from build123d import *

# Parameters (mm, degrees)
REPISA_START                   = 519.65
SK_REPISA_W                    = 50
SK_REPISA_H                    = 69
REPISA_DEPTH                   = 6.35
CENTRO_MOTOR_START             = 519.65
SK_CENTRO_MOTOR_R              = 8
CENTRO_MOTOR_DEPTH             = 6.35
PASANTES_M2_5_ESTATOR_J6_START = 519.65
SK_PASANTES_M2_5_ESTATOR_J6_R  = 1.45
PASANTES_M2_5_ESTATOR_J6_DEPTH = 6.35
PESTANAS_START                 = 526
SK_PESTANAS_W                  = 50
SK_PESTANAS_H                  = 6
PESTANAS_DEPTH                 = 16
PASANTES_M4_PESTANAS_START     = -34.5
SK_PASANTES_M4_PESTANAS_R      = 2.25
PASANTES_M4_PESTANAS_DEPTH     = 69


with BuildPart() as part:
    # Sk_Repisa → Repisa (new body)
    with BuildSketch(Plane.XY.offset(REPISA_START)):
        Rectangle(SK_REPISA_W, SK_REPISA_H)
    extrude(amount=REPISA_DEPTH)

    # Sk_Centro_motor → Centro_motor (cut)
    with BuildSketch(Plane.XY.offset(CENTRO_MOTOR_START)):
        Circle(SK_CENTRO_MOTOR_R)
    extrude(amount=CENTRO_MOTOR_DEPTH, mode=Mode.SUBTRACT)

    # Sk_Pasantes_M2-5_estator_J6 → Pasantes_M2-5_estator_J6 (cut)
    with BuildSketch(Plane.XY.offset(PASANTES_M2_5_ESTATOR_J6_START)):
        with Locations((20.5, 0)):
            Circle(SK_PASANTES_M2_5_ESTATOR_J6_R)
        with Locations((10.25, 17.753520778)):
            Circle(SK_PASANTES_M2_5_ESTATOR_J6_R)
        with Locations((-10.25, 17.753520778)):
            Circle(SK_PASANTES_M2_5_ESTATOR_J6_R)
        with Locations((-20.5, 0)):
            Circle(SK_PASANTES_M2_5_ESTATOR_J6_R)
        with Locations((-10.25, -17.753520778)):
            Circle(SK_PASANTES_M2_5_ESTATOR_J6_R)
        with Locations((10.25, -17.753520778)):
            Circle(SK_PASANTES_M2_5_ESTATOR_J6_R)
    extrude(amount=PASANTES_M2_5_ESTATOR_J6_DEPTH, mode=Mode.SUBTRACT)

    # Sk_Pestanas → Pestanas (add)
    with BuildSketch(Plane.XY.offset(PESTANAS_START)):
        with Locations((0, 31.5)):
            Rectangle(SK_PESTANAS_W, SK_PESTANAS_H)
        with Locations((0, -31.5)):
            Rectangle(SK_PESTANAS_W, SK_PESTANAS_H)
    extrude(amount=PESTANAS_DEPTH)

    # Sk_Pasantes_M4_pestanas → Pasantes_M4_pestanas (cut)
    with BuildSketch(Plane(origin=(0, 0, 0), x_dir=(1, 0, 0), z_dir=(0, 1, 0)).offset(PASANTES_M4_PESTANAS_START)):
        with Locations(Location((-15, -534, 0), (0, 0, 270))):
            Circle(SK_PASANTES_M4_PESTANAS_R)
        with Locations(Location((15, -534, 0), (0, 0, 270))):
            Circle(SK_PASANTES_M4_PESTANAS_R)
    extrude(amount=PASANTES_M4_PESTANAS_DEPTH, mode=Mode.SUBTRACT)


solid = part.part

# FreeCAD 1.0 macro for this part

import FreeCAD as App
import Part
import Sketcher
from FreeCAD import Vector
Q = App.Units.Quantity

doc = App.newDocument("Part")
params = doc.addObject("Spreadsheet::Sheet", "Params")
for row, (alias, value) in enumerate([
    ("sketch1_width", "50 mm"),
    ("sketch1_height", "69 mm"),
    ("pad1_length", "6.35 mm"),
    ("sketch2_diameter", "16 mm"),
    ("pocket1_length", "6.35 mm"),
    ("sketch3_diameter", "2.9 mm"),
    ("pocket2_length", "6.35 mm"),
    ("sketch4_width", "50 mm"),
    ("sketch4_height", "6 mm"),
    ("pad2_length", "16 mm"),
    ("sketch5_diameter", "4.5 mm"),
    ("pocket3_length", "69 mm"),
], start=1):
    params.set(f"A{row}", alias)
    params.set(f"B{row}", "=" + value)
    params.setAlias(f"B{row}", alias)

body = doc.addObject("PartDesign::Body", "Body")

sketch1 = doc.addObject("Sketcher::SketchObject", "Sketch")
body.addObject(sketch1)
sketch1.AttachmentSupport = (doc.XY_Plane, [""])
sketch1.MapMode = "FlatFace"
sketch1.AttachmentOffset = App.Placement(Vector(0, 0, 519.65), App.Rotation())
sketch1.addGeometry([
    Part.LineSegment(Vector(-25, 34, 0), Vector(-25, -34, 0)),
    Part.LineSegment(Vector(-25, -34, 0), Vector(25, -34, 0)),
    Part.LineSegment(Vector(25, -34, 0), Vector(25, 34, 0)),
    Part.LineSegment(Vector(25, 34, 0), Vector(-25, 34, 0)),
], False)
sketch1.addConstraint([
    Sketcher.Constraint("Coincident", 0, 2, 1, 1),
    Sketcher.Constraint("Coincident", 1, 2, 2, 1),
    Sketcher.Constraint("Coincident", 2, 2, 3, 1),
    Sketcher.Constraint("Coincident", 3, 2, 0, 1),
    Sketcher.Constraint("Vertical", 0),
    Sketcher.Constraint("Horizontal", 1),
    Sketcher.Constraint("Vertical", 2),
    Sketcher.Constraint("Horizontal", 3),
    Sketcher.Constraint("Symmetric", 0, 2, 2, 2, -1, 1),
    Sketcher.Constraint("DistanceX", 1, 1, 1, 2, Q("50 mm")),
    Sketcher.Constraint("DistanceY", 0, 2, 0, 1, Q("69 mm")),
])
sketch1.setExpression("Constraints[9]", "Params.sketch1_width")
sketch1.setExpression("Constraints[10]", "Params.sketch1_height")
pad1 = doc.addObject("PartDesign::Pad", "Pad")
body.addObject(pad1)
pad1.Profile = sketch1
pad1.setExpression("Length", "Params.pad1_length")

sketch2 = doc.addObject("Sketcher::SketchObject", "Sketch001")
body.addObject(sketch2)
sketch2.AttachmentSupport = (doc.XY_Plane, [""])
sketch2.MapMode = "FlatFace"
sketch2.AttachmentOffset = App.Placement(Vector(0, 0, 519.65), App.Rotation())
sketch2.addGeometry(Part.Circle(Vector(0, 0, 0), Vector(0, 0, 1), 8), False)
sketch2.addConstraint([
    Sketcher.Constraint("Coincident", 0, 3, -1, 1),
    Sketcher.Constraint("Diameter", 0, Q("16 mm")),
])
sketch2.setExpression("Constraints[1]", "Params.sketch2_diameter")
pocket1 = doc.addObject("PartDesign::Pocket", "Pocket")
body.addObject(pocket1)
pocket1.Profile = sketch2
pocket1.setExpression("Length", "Params.pocket1_length")
pocket1.Reversed = True

sketch3 = doc.addObject("Sketcher::SketchObject", "Sketch002")
body.addObject(sketch3)
sketch3.AttachmentSupport = (doc.XY_Plane, [""])
sketch3.MapMode = "FlatFace"
sketch3.AttachmentOffset = App.Placement(Vector(0, 0, 519.65), App.Rotation())
sketch3.addGeometry([
    Part.Circle(Vector(20.5, 0, 0), Vector(0, 0, 1), 1.4),
    Part.Circle(Vector(10.2, 17.8, 0), Vector(0, 0, 1), 1.4),
    Part.Circle(Vector(-10.2, 17.8, 0), Vector(0, 0, 1), 1.4),
    Part.Circle(Vector(-20.5, 0, 0), Vector(0, 0, 1), 1.4),
    Part.Circle(Vector(-10.2, -17.8, 0), Vector(0, 0, 1), 1.4),
    Part.Circle(Vector(10.2, -17.8, 0), Vector(0, 0, 1), 1.4),
], False)
sketch3.addConstraint([
    Sketcher.Constraint("Equal", 0, 1),
    Sketcher.Constraint("Equal", 1, 2),
    Sketcher.Constraint("Equal", 2, 3),
    Sketcher.Constraint("Equal", 3, 4),
    Sketcher.Constraint("Equal", 4, 5),
    Sketcher.Constraint("Symmetric", 0, 3, 3, 3, -1, 1),
    Sketcher.Constraint("Symmetric", 1, 3, 4, 3, -1, 1),
    Sketcher.Constraint("Symmetric", 2, 3, 5, 3, -1, 1),
    Sketcher.Constraint("Symmetric", 1, 3, 2, 3, -2),
    Sketcher.Constraint("PointOnObject", 0, 3, -1),
    Sketcher.Constraint("Diameter", 0, Q("2.9 mm")),
    Sketcher.Constraint("DistanceX", 3, 3, 0, 3, Q("41 mm")),
    Sketcher.Constraint("DistanceX", 2, 3, 1, 3, Q("20.5 mm")),
    Sketcher.Constraint("DistanceY", -1, 1, 1, 3, Q("17.753521 mm")),
])
sketch3.setExpression("Constraints[10]", "Params.sketch3_diameter")
pocket2 = doc.addObject("PartDesign::Pocket", "Pocket001")
body.addObject(pocket2)
pocket2.Profile = sketch3
pocket2.setExpression("Length", "Params.pocket2_length")
pocket2.Reversed = True

sketch4 = doc.addObject("Sketcher::SketchObject", "Sketch003")
body.addObject(sketch4)
sketch4.AttachmentSupport = (doc.XY_Plane, [""])
sketch4.MapMode = "FlatFace"
sketch4.AttachmentOffset = App.Placement(Vector(0, 0, 526), App.Rotation())
sketch4.addGeometry([
    Part.LineSegment(Vector(-25, 34, 0), Vector(-25, 28, 0)),
    Part.LineSegment(Vector(-25, 28, 0), Vector(25, 28, 0)),
    Part.LineSegment(Vector(25, 28, 0), Vector(25, 34, 0)),
    Part.LineSegment(Vector(25, 34, 0), Vector(-25, 34, 0)),
    Part.LineSegment(Vector(-25, -28, 0), Vector(-25, -34, 0)),
    Part.LineSegment(Vector(-25, -34, 0), Vector(25, -34, 0)),
    Part.LineSegment(Vector(25, -34, 0), Vector(25, -28, 0)),
    Part.LineSegment(Vector(25, -28, 0), Vector(-25, -28, 0)),
], False)
sketch4.addConstraint([
    Sketcher.Constraint("Coincident", 0, 2, 1, 1),
    Sketcher.Constraint("Coincident", 1, 2, 2, 1),
    Sketcher.Constraint("Coincident", 2, 2, 3, 1),
    Sketcher.Constraint("Coincident", 3, 2, 0, 1),
    Sketcher.Constraint("Coincident", 4, 2, 5, 1),
    Sketcher.Constraint("Coincident", 5, 2, 6, 1),
    Sketcher.Constraint("Coincident", 6, 2, 7, 1),
    Sketcher.Constraint("Coincident", 7, 2, 4, 1),
    Sketcher.Constraint("Vertical", 0),
    Sketcher.Constraint("Horizontal", 1),
    Sketcher.Constraint("Vertical", 2),
    Sketcher.Constraint("Horizontal", 3),
    Sketcher.Constraint("Vertical", 4),
    Sketcher.Constraint("Horizontal", 5),
    Sketcher.Constraint("Vertical", 6),
    Sketcher.Constraint("Horizontal", 7),
    Sketcher.Constraint("Symmetric", 2, 2, 4, 2, -1, 1),
    Sketcher.Constraint("Symmetric", 0, 2, 6, 2, -1, 1),
    Sketcher.Constraint("Vertical", 3, 2, 4, 2),
    Sketcher.Constraint("DistanceX", 1, 1, 1, 2, Q("50 mm")),
    Sketcher.Constraint("DistanceY", 0, 2, 0, 1, Q("6 mm")),
    Sketcher.Constraint("DistanceY", 4, 2, 0, 2, Q("63 mm")),
])
sketch4.setExpression("Constraints[19]", "Params.sketch4_width")
sketch4.setExpression("Constraints[20]", "Params.sketch4_height")
pad2 = doc.addObject("PartDesign::Pad", "Pad001")
body.addObject(pad2)
pad2.Profile = sketch4
pad2.setExpression("Length", "Params.pad2_length")

sketch5 = doc.addObject("Sketcher::SketchObject", "Sketch004")
body.addObject(sketch5)
sketch5.AttachmentSupport = (doc.XZ_Plane, [""])
sketch5.MapMode = "FlatFace"
sketch5.AttachmentOffset = App.Placement(Vector(0, 0, 34.5), App.Rotation())
sketch5.addGeometry([
    Part.Circle(Vector(-15, 534, 0), Vector(0, 0, 1), 2.2),
    Part.Circle(Vector(15, 534, 0), Vector(0, 0, 1), 2.2),
], False)
sketch5.addConstraint([
    Sketcher.Constraint("Equal", 0, 1),
    Sketcher.Constraint("Symmetric", 0, 3, 1, 3, -2),
    Sketcher.Constraint("Diameter", 0, Q("4.5 mm")),
    Sketcher.Constraint("DistanceX", 0, 3, -1, 1, Q("15 mm")),
    Sketcher.Constraint("DistanceY", -1, 1, 0, 3, Q("534 mm")),
])
sketch5.setExpression("Constraints[2]", "Params.sketch5_diameter")
pocket3 = doc.addObject("PartDesign::Pocket", "Pocket002")
body.addObject(pocket3)
pocket3.Profile = sketch5
pocket3.setExpression("Length", "Params.pocket3_length")

doc.recompute()
